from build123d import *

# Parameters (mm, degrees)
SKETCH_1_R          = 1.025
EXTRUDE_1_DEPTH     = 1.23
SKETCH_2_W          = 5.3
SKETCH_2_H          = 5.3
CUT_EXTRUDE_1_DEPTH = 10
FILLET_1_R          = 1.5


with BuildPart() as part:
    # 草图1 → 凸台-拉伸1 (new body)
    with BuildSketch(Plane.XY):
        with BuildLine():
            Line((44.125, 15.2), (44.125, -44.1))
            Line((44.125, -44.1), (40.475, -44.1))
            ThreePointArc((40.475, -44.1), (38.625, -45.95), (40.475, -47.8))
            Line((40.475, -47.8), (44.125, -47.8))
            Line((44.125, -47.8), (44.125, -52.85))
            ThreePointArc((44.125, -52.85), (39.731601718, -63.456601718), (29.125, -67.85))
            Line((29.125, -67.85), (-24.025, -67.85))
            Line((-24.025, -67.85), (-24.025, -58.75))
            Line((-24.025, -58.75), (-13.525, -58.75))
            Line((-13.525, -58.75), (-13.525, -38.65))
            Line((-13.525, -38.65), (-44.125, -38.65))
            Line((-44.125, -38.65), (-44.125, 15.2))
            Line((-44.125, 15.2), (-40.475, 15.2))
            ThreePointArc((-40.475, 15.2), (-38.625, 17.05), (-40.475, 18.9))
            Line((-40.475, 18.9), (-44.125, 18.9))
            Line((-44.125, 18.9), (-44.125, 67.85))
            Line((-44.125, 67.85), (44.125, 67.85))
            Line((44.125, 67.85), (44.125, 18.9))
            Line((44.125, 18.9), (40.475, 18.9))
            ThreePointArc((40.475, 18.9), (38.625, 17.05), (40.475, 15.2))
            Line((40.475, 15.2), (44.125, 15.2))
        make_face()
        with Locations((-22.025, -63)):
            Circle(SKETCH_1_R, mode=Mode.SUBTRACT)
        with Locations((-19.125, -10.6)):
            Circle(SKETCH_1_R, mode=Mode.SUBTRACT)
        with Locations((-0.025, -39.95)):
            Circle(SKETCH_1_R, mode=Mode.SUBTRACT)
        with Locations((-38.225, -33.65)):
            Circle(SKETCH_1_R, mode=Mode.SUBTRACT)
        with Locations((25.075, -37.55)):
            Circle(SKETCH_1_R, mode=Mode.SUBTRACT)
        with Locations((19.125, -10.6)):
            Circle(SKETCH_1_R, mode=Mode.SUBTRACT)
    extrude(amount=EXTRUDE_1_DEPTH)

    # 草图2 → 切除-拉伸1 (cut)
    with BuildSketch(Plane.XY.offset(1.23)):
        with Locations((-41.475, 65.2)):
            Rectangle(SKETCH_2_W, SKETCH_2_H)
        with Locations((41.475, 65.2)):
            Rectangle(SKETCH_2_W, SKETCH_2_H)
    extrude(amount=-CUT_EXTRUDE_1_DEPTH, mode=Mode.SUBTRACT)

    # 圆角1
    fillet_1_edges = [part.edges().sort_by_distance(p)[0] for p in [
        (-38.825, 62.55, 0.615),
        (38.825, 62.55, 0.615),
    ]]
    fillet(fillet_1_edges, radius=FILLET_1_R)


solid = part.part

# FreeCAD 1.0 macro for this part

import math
import FreeCAD as App
import Part
import Sketcher
from FreeCAD import Vector


def edges_at(feature, points):
    """Names of the edges that pass closest to the given points."""
    edges = feature.Shape.Edges
    near = lambda p: min(range(len(edges)), key=lambda i: edges[i].distToShape(Part.Vertex(*p))[0])
    return sorted({f"Edge{near(p) + 1}" for p in points})


def add_polygon(sketch, points):
    """Adds a closed chain of lines whose ends are joined by coincident constraints."""
    first, n = sketch.GeometryCount, len(points)
    for a, b in zip(points, points[1:] + points[:1]):
        sketch.addGeometry(Part.LineSegment(App.Vector(*a, 0), App.Vector(*b, 0)), False)
    for i in range(n):
        sketch.addConstraint(Sketcher.Constraint("Coincident", first + i, 2, first + (i + 1) % n, 1))

doc = App.newDocument("Part")
body = doc.addObject("PartDesign::Body", "Body")

# Sketch on XY plane
sketch1 = body.newObject("Sketcher::SketchObject", "Sketch")
sketch1.AttachmentSupport = (doc.getObject("XY_Plane"), [""])
sketch1.MapMode = "FlatFace"
sketch1.addGeometry([
    Part.LineSegment(Vector(44.125, -44.1, 0), Vector(44.125, 15.2, 0)),  # 0
    Part.LineSegment(Vector(44.125, 15.2, 0), Vector(40.475, 15.2, 0)),  # 1
    Part.ArcOfCircle(Part.Circle(Vector(40.475, 17.05, 0), Vector(0, 0, 1), 1.85), math.radians(90), math.radians(270)),  # 2
    Part.LineSegment(Vector(40.475, 18.9, 0), Vector(44.125, 18.9, 0)),  # 3
    Part.LineSegment(Vector(44.125, 18.9, 0), Vector(44.125, 67.85, 0)),  # 4
    Part.LineSegment(Vector(44.125, 67.85, 0), Vector(-44.125, 67.85, 0)),  # 5
    Part.LineSegment(Vector(-44.125, 67.85, 0), Vector(-44.125, 18.9, 0)),  # 6
    Part.LineSegment(Vector(-44.125, 18.9, 0), Vector(-40.475, 18.9, 0)),  # 7
    Part.ArcOfCircle(Part.Circle(Vector(-40.475, 17.05, 0), Vector(0, 0, 1), 1.85), math.radians(-90), math.radians(90)),  # 8
    Part.LineSegment(Vector(-40.475, 15.2, 0), Vector(-44.125, 15.2, 0)),  # 9
    Part.LineSegment(Vector(-44.125, 15.2, 0), Vector(-44.125, -38.65, 0)),  # 10
    Part.LineSegment(Vector(-44.125, -38.65, 0), Vector(-13.525, -38.65, 0)),  # 11
    Part.LineSegment(Vector(-13.525, -38.65, 0), Vector(-13.525, -58.75, 0)),  # 12
    Part.LineSegment(Vector(-13.525, -58.75, 0), Vector(-24.025, -58.75, 0)),  # 13
    Part.LineSegment(Vector(-24.025, -58.75, 0), Vector(-24.025, -67.85, 0)),  # 14
    Part.LineSegment(Vector(-24.025, -67.85, 0), Vector(29.125, -67.85, 0)),  # 15
    Part.ArcOfCircle(Part.Circle(Vector(29.125, -52.85, 0), Vector(0, 0, 1), 15), math.radians(-90), math.radians(0)),  # 16
    Part.LineSegment(Vector(44.125, -52.85, 0), Vector(44.125, -47.8, 0)),  # 17
    Part.LineSegment(Vector(44.125, -47.8, 0), Vector(40.475, -47.8, 0)),  # 18
    Part.ArcOfCircle(Part.Circle(Vector(40.475, -45.95, 0), Vector(0, 0, 1), 1.85), math.radians(90), math.radians(270)),  # 19
    Part.LineSegment(Vector(40.475, -44.1, 0), Vector(44.125, -44.1, 0)),  # 20
    Part.Circle(Vector(25.075, -37.55, 0), Vector(0, 0, 1), 1.025),  # 21
    Part.Circle(Vector(-0.025, -39.95, 0), Vector(0, 0, 1), 1.025),  # 22
    Part.Circle(Vector(-22.025, -63, 0), Vector(0, 0, 1), 1.025),  # 23
    Part.Circle(Vector(19.125, -10.6, 0), Vector(0, 0, 1), 1.025),  # 24
    Part.Circle(Vector(-38.225, -33.65, 0), Vector(0, 0, 1), 1.025),  # 25
    Part.Circle(Vector(-19.125, -10.6, 0), Vector(0, 0, 1), 1.025),  # 26
], False)
sketch1.addConstraint([
    Sketcher.Constraint("Coincident", 0, 2, 1, 1),
    Sketcher.Constraint("Tangent", 1, 2, 2, 2),
    Sketcher.Constraint("Tangent", 2, 1, 3, 1),
    Sketcher.Constraint("Coincident", 3, 2, 4, 1),
    Sketcher.Constraint("Coincident", 4, 2, 5, 1),
    Sketcher.Constraint("Coincident", 5, 2, 6, 1),
    Sketcher.Constraint("Coincident", 6, 2, 7, 1),
    Sketcher.Constraint("Tangent", 7, 2, 8, 2),
    Sketcher.Constraint("Tangent", 8, 1, 9, 1),
    Sketcher.Constraint("Coincident", 9, 2, 10, 1),
    Sketcher.Constraint("Coincident", 10, 2, 11, 1),
    Sketcher.Constraint("Coincident", 11, 2, 12, 1),
    Sketcher.Constraint("Coincident", 12, 2, 13, 1),
    Sketcher.Constraint("Coincident", 13, 2, 14, 1),
    Sketcher.Constraint("Coincident", 14, 2, 15, 1),
    Sketcher.Constraint("Tangent", 15, 2, 16, 1),
    Sketcher.Constraint("Tangent", 16, 2, 17, 1),
    Sketcher.Constraint("Coincident", 17, 2, 18, 1),
    Sketcher.Constraint("Tangent", 18, 2, 19, 2),
    Sketcher.Constraint("Tangent", 19, 1, 20, 1),
    Sketcher.Constraint("Coincident", 20, 2, 0, 1),
    Sketcher.Constraint("Vertical", 0),
    Sketcher.Constraint("Horizontal", 1),
    Sketcher.Constraint("Horizontal", 3),
    Sketcher.Constraint("Vertical", 4),
    Sketcher.Constraint("Horizontal", 5),
    Sketcher.Constraint("Vertical", 6),
    Sketcher.Constraint("Horizontal", 7),
    Sketcher.Constraint("Horizontal", 9),
    Sketcher.Constraint("Vertical", 10),
    Sketcher.Constraint("Horizontal", 11),
    Sketcher.Constraint("Vertical", 12),
    Sketcher.Constraint("Horizontal", 13),
    Sketcher.Constraint("Vertical", 14),
    Sketcher.Constraint("Horizontal", 15),
    Sketcher.Constraint("Vertical", 17),
    Sketcher.Constraint("Horizontal", 18),
    Sketcher.Constraint("Horizontal", 20),
    Sketcher.Constraint("Equal", 2, 8),
    Sketcher.Constraint("Equal", 8, 19),
    Sketcher.Constraint("Equal", 21, 22),
    Sketcher.Constraint("Equal", 22, 23),
    Sketcher.Constraint("Equal", 23, 24),
    Sketcher.Constraint("Equal", 24, 25),
    Sketcher.Constraint("Equal", 25, 26),
    Sketcher.Constraint("Symmetric", 2, 3, 8, 3, -2),
    Sketcher.Constraint("Symmetric", 24, 3, 26, 3, -2),
    Sketcher.Constraint("Vertical", 2, 3, 19, 3),
    Sketcher.Constraint("Vertical", 0, 2, 3, 2),
    Sketcher.Constraint("Vertical", 6, 2, 9, 2),
    Sketcher.Constraint("Vertical", 4, 2, 16, 2),
    Sketcher.Constraint("Equal", 3, 7),
    Sketcher.Constraint("Radius", 16, 15.0),
    Sketcher.Constraint("Diameter", 21, 2.05),
    Sketcher.Constraint("Radius", 2, 1.85),
    Sketcher.Constraint("DistanceX", 11, 1, 11, 2, 30.6),
    Sketcher.Constraint("DistanceX", 13, 2, 13, 1, 10.5),
    Sketcher.Constraint("DistanceY", 0, 1, 0, 2, 59.3),
    Sketcher.Constraint("DistanceY", 12, 2, 12, 1, 20.1),
    Sketcher.Constraint("DistanceY", 14, 2, 14, 1, 9.1),
    Sketcher.Constraint("DistanceY", 23, 3, -1, 1, 63.0),
    Sketcher.Constraint("DistanceY", 19, 3, 22, 3, 6.0),
    Sketcher.Constraint("DistanceX", 23, 3, 22, 3, 22.0),
    Sketcher.Constraint("DistanceX", 24, 3, 16, 3, 10.0),
    Sketcher.Constraint("DistanceY", 10, 2, 25, 3, 5.0),
    Sketcher.Constraint("DistanceX", 13, 2, 23, 3, 2.0),
    Sketcher.Constraint("DistanceX", 1, 2, 1, 1, 3.65),
    Sketcher.Constraint("DistanceX", 5, 2, 5, 1, 88.25),
    Sketcher.Constraint("DistanceY", 4, 1, 4, 2, 48.95),
    Sketcher.Constraint("DistanceY", 10, 2, 10, 1, 53.85),
    Sketcher.Constraint("DistanceY", 24, 3, -1, 1, 10.6),
    Sketcher.Constraint("DistanceY", -1, 1, 0, 2, 15.2),
    Sketcher.Constraint("DistanceY", 16, 3, 21, 3, 15.3),
    Sketcher.Constraint("DistanceX", 21, 3, 19, 3, 15.4),
    Sketcher.Constraint("DistanceX", 25, 3, 23, 3, 16.2),
])
pad1 = body.newObject("PartDesign::Pad", "Pad")
pad1.Profile = sketch1
pad1.Length = 1.23

# Sketch on XY plane
sketch2 = body.newObject("Sketcher::SketchObject", "Sketch001")
sketch2.AttachmentSupport = (doc.getObject("XY_Plane"), [""])
sketch2.MapMode = "FlatFace"
sketch2.AttachmentOffset = App.Placement(Vector(0, 0, 1.23), App.Rotation())
add_polygon(sketch2, [(-44.125, 67.85), (-44.125, 62.55), (-38.825, 62.55), (-38.825, 67.85)])  # lines 0-3
add_polygon(sketch2, [(38.825, 67.85), (38.825, 62.55), (44.125, 62.55), (44.125, 67.85)])  # lines 4-7
sketch2.addConstraint([
    Sketcher.Constraint("Vertical", 0),
    Sketcher.Constraint("Horizontal", 1),
    Sketcher.Constraint("Vertical", 2),
    Sketcher.Constraint("Horizontal", 3),
    Sketcher.Constraint("Vertical", 4),
    Sketcher.Constraint("Horizontal", 5),
    Sketcher.Constraint("Vertical", 6),
    Sketcher.Constraint("Horizontal", 7),
    Sketcher.Constraint("Symmetric", 1, 2, 4, 2, -2),
    Sketcher.Constraint("Symmetric", 3, 2, 6, 2, -2),
    Sketcher.Constraint("Equal", 7, 0),
    Sketcher.Constraint("DistanceX", 1, 1, 1, 2, 5.3),
    Sketcher.Constraint("DistanceY", -1, 1, 0, 2, 62.55),
    Sketcher.Constraint("DistanceX", 1, 2, 4, 2, 77.65),
])
pocket1 = body.newObject("PartDesign::Pocket", "Pocket")
pocket1.Profile = sketch2
pocket1.Length = 10
doc.recompute()

fillet = body.newObject("PartDesign::Fillet", "Fillet")
fillet.Base = (pocket1, edges_at(pocket1, [(-38.825, 62.55, 0.615), (38.825, 62.55, 0.615)]))
fillet.Radius = 1.5

doc.recompute()
